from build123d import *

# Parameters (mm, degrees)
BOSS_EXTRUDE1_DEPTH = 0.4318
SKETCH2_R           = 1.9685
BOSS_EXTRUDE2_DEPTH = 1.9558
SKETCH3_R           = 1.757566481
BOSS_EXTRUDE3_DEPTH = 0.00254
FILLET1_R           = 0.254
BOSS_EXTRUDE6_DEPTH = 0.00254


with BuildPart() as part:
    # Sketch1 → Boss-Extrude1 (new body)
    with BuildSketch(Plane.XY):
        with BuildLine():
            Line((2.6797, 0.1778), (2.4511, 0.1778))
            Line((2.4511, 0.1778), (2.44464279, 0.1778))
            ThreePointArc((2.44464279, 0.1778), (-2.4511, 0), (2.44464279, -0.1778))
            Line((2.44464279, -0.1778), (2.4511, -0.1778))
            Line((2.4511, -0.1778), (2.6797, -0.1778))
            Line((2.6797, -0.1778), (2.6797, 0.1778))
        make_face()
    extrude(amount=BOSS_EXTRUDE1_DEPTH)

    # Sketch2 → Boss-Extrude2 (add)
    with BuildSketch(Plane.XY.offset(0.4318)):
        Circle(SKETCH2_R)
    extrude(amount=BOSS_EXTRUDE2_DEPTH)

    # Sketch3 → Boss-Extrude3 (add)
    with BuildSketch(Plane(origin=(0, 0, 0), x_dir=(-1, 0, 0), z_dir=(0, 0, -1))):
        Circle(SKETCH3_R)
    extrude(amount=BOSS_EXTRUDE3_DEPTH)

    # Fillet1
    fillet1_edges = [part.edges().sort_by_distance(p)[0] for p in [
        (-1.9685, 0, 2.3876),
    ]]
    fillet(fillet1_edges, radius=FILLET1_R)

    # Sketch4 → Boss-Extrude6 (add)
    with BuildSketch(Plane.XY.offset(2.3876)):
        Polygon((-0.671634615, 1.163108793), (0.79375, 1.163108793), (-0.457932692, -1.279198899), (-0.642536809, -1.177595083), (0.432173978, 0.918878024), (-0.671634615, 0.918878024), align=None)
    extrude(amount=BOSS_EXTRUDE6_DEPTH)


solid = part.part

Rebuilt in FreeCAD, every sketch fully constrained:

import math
import FreeCAD as App
import Part
import Sketcher
Q = App.Units.Quantity


def edges_at(feature, points):
    """Names of the edges that pass closest to the given points."""
    edges = feature.Shape.Edges
    near = lambda p: min(range(len(edges)), key=lambda i: edges[i].distToShape(Part.Vertex(*p))[0])
    return sorted({f"Edge{near(p) + 1}" for p in points})

doc = App.newDocument("Part")
params = doc.addObject("Spreadsheet::Sheet", "Params")
for row, (alias, value) in enumerate([
    ("sketch1_height", "0.014 in"),
    ("pad1_length", "0.017 in"),
    ("sketch2_diameter", "0.155 in"),
    ("pad2_length", "0.077 in"),
    ("pad3_length", "0.0001 in"),
    ("fillet_radius", "0.01 in"),
    ("pad4_length", "0.0001 in"),
], start=1):
    params.set(f"A{row}", alias)
    params.set(f"B{row}", "=" + value)
    params.setAlias(f"B{row}", alias)

body = doc.addObject("PartDesign::Body", "Body")

# Sketch on XY plane
sketch1 = body.newObject("Sketcher::SketchObject", "Sketch")
sketch1.AttachmentSupport = (doc.getObject("XY_Plane"), [""])
sketch1.MapMode = "FlatFace"
sketch1.addGeometry([
    Part.LineSegment(App.Vector(2.6797, 0.1778, 0), App.Vector(2.444643, 0.1778, 0)),
    Part.ArcOfCircle(Part.Circle(App.Vector(0, 0, 0), App.Vector(0, 0, 1), 2.4511), math.radians(4.159824), math.radians(355.840176)),
    Part.LineSegment(App.Vector(2.444643, -0.1778, 0), App.Vector(2.6797, -0.1778, 0)),
    Part.LineSegment(App.Vector(2.6797, -0.1778, 0), App.Vector(2.6797, 0.1778, 0)),
], False)
sketch1.addConstraint([
    Sketcher.Constraint("Coincident", 0, 2, 1, 1),
    Sketcher.Constraint("Coincident", 1, 2, 2, 1),
    Sketcher.Constraint("Coincident", 2, 2, 3, 1),
    Sketcher.Constraint("Coincident", 3, 2, 0, 1),
    Sketcher.Constraint("Horizontal", 0),
    Sketcher.Constraint("Horizontal", 2),
    Sketcher.Constraint("Vertical", 3),
    Sketcher.Constraint("Coincident", 1, 3, -1, 1),
    Sketcher.Constraint("Vertical", 0, 2, 1, 2),
    Sketcher.Constraint("Radius", 1, Q("0.0965 in")),
    Sketcher.Constraint("DistanceY", 3, 1, 3, 2, Q("0.014 in")),
    Sketcher.Constraint("DistanceX", -1, 1, 2, 2, Q("0.1055 in")),
])
sketch1.setExpression("Constraints[10]", "Params.sketch1_height")
pad1 = body.newObject("PartDesign::Pad", "Pad")
pad1.Profile = sketch1
pad1.setExpression("Length", "Params.pad1_length")

# Sketch on XY plane
sketch2 = body.newObject("Sketcher::SketchObject", "Sketch001")
sketch2.AttachmentSupport = (doc.getObject("XY_Plane"), [""])
sketch2.MapMode = "FlatFace"
sketch2.AttachmentOffset = App.Placement(App.Vector(0, 0, 0.017 * 25.4), App.Rotation())
sketch2.addGeometry(Part.Circle(App.Vector(0, 0, 0), App.Vector(0, 0, 1), 1.9685), False)
sketch2.addConstraint([
    Sketcher.Constraint("Coincident", 0, 3, -1, 1),
    Sketcher.Constraint("Diameter", 0, Q("0.155 in")),
])
sketch2.setExpression("Constraints[1]", "Params.sketch2_diameter")
pad2 = body.newObject("PartDesign::Pad", "Pad001")
pad2.Profile = sketch2
pad2.setExpression("Length", "Params.pad2_length")

# Sketch on XY plane
sketch3 = body.newObject("Sketcher::SketchObject", "Sketch002")
sketch3.AttachmentSupport = (doc.getObject("XY_Plane"), [""])
sketch3.MapMode = "FlatFace"
sketch3.addGeometry(Part.Circle(App.Vector(0, 0, 0), App.Vector(0, 0, 1), 1.757566), False)
sketch3.addConstraint([
    Sketcher.Constraint("Coincident", 0, 3, -1, 1),
    Sketcher.Constraint("Diameter", 0, Q("3.515133 mm")),
])
pad3 = body.newObject("PartDesign::Pad", "Pad002")
pad3.Profile = sketch3
pad3.setExpression("Length", "Params.pad3_length")
pad3.Reversed = True
doc.recompute()

fillet = body.newObject("PartDesign::Fillet", "Fillet")
fillet.Base = (pad3, edges_at(pad3, [(-1.968, 0, 2.388)]))
fillet.setExpression("Radius", "Params.fillet_radius")

# Sketch on XY plane
sketch4 = body.newObject("Sketcher::SketchObject", "Sketch003")
sketch4.AttachmentSupport = (doc.getObject("XY_Plane"), [""])
sketch4.MapMode = "FlatFace"
sketch4.AttachmentOffset = App.Placement(App.Vector(0, 0, 0.094 * 25.4), App.Rotation())
sketch4.addGeometry([
    Part.LineSegment(App.Vector(0.79375, 1.163109, 0), App.Vector(-0.671635, 1.163109, 0)),  # 0
    Part.LineSegment(App.Vector(-0.671635, 1.163109, 0), App.Vector(-0.671635, 0.918878, 0)),  # 1
    Part.LineSegment(App.Vector(-0.671635, 0.918878, 0), App.Vector(0.432174, 0.918878, 0)),  # 2
    Part.LineSegment(App.Vector(0.432174, 0.918878, 0), App.Vector(-0.642537, -1.177595, 0)),  # 3
    Part.LineSegment(App.Vector(-0.642537, -1.177595, 0), App.Vector(-0.457933, -1.279199, 0)),  # 4
    Part.LineSegment(App.Vector(-0.457933, -1.279199, 0), App.Vector(0.79375, 1.163109, 0)),  # 5
], False)
sketch4.addConstraint([
    Sketcher.Constraint("Coincident", 0, 2, 1, 1),
    Sketcher.Constraint("Coincident", 1, 2, 2, 1),
    Sketcher.Constraint("Coincident", 2, 2, 3, 1),
    Sketcher.Constraint("Coincident", 3, 2, 4, 1),
    Sketcher.Constraint("Coincident", 4, 2, 5, 1),
    Sketcher.Constraint("Coincident", 5, 2, 0, 1),
    Sketcher.Constraint("Horizontal", 0),
    Sketcher.Constraint("Vertical", 1),
    Sketcher.Constraint("Horizontal", 2),
    Sketcher.Constraint("DistanceX", -1, 1, 5, 2, Q("0.03125 in")),
    Sketcher.Constraint("DistanceY", 4, 2, 3, 2, Q("0.0040002 in")),
    Sketcher.Constraint("DistanceX", 2, 1, 2, 2, Q("1.103809 mm")),
    Sketcher.Constraint("DistanceY", 1, 2, 1, 1, Q("0.244231 mm")),
    Sketcher.Constraint("DistanceY", 4, 2, -1, 1, Q("1.279199 mm")),
    Sketcher.Constraint("DistanceX", 1, 2, 4, 2, Q("0.213702 mm")),
    Sketcher.Constraint("Distance", 5, Q("2.744372 mm")),
    Sketcher.Constraint("DistanceX", 0, 2, 0, 1, Q("1.465385 mm")),
    Sketcher.Constraint("DistanceX", 3, 2, 2, 2, Q("1.074711 mm")),
])
pad4 = body.newObject("PartDesign::Pad", "Pad003")
pad4.Profile = sketch4
pad4.setExpression("Length", "Params.pad4_length")

doc.recompute()
